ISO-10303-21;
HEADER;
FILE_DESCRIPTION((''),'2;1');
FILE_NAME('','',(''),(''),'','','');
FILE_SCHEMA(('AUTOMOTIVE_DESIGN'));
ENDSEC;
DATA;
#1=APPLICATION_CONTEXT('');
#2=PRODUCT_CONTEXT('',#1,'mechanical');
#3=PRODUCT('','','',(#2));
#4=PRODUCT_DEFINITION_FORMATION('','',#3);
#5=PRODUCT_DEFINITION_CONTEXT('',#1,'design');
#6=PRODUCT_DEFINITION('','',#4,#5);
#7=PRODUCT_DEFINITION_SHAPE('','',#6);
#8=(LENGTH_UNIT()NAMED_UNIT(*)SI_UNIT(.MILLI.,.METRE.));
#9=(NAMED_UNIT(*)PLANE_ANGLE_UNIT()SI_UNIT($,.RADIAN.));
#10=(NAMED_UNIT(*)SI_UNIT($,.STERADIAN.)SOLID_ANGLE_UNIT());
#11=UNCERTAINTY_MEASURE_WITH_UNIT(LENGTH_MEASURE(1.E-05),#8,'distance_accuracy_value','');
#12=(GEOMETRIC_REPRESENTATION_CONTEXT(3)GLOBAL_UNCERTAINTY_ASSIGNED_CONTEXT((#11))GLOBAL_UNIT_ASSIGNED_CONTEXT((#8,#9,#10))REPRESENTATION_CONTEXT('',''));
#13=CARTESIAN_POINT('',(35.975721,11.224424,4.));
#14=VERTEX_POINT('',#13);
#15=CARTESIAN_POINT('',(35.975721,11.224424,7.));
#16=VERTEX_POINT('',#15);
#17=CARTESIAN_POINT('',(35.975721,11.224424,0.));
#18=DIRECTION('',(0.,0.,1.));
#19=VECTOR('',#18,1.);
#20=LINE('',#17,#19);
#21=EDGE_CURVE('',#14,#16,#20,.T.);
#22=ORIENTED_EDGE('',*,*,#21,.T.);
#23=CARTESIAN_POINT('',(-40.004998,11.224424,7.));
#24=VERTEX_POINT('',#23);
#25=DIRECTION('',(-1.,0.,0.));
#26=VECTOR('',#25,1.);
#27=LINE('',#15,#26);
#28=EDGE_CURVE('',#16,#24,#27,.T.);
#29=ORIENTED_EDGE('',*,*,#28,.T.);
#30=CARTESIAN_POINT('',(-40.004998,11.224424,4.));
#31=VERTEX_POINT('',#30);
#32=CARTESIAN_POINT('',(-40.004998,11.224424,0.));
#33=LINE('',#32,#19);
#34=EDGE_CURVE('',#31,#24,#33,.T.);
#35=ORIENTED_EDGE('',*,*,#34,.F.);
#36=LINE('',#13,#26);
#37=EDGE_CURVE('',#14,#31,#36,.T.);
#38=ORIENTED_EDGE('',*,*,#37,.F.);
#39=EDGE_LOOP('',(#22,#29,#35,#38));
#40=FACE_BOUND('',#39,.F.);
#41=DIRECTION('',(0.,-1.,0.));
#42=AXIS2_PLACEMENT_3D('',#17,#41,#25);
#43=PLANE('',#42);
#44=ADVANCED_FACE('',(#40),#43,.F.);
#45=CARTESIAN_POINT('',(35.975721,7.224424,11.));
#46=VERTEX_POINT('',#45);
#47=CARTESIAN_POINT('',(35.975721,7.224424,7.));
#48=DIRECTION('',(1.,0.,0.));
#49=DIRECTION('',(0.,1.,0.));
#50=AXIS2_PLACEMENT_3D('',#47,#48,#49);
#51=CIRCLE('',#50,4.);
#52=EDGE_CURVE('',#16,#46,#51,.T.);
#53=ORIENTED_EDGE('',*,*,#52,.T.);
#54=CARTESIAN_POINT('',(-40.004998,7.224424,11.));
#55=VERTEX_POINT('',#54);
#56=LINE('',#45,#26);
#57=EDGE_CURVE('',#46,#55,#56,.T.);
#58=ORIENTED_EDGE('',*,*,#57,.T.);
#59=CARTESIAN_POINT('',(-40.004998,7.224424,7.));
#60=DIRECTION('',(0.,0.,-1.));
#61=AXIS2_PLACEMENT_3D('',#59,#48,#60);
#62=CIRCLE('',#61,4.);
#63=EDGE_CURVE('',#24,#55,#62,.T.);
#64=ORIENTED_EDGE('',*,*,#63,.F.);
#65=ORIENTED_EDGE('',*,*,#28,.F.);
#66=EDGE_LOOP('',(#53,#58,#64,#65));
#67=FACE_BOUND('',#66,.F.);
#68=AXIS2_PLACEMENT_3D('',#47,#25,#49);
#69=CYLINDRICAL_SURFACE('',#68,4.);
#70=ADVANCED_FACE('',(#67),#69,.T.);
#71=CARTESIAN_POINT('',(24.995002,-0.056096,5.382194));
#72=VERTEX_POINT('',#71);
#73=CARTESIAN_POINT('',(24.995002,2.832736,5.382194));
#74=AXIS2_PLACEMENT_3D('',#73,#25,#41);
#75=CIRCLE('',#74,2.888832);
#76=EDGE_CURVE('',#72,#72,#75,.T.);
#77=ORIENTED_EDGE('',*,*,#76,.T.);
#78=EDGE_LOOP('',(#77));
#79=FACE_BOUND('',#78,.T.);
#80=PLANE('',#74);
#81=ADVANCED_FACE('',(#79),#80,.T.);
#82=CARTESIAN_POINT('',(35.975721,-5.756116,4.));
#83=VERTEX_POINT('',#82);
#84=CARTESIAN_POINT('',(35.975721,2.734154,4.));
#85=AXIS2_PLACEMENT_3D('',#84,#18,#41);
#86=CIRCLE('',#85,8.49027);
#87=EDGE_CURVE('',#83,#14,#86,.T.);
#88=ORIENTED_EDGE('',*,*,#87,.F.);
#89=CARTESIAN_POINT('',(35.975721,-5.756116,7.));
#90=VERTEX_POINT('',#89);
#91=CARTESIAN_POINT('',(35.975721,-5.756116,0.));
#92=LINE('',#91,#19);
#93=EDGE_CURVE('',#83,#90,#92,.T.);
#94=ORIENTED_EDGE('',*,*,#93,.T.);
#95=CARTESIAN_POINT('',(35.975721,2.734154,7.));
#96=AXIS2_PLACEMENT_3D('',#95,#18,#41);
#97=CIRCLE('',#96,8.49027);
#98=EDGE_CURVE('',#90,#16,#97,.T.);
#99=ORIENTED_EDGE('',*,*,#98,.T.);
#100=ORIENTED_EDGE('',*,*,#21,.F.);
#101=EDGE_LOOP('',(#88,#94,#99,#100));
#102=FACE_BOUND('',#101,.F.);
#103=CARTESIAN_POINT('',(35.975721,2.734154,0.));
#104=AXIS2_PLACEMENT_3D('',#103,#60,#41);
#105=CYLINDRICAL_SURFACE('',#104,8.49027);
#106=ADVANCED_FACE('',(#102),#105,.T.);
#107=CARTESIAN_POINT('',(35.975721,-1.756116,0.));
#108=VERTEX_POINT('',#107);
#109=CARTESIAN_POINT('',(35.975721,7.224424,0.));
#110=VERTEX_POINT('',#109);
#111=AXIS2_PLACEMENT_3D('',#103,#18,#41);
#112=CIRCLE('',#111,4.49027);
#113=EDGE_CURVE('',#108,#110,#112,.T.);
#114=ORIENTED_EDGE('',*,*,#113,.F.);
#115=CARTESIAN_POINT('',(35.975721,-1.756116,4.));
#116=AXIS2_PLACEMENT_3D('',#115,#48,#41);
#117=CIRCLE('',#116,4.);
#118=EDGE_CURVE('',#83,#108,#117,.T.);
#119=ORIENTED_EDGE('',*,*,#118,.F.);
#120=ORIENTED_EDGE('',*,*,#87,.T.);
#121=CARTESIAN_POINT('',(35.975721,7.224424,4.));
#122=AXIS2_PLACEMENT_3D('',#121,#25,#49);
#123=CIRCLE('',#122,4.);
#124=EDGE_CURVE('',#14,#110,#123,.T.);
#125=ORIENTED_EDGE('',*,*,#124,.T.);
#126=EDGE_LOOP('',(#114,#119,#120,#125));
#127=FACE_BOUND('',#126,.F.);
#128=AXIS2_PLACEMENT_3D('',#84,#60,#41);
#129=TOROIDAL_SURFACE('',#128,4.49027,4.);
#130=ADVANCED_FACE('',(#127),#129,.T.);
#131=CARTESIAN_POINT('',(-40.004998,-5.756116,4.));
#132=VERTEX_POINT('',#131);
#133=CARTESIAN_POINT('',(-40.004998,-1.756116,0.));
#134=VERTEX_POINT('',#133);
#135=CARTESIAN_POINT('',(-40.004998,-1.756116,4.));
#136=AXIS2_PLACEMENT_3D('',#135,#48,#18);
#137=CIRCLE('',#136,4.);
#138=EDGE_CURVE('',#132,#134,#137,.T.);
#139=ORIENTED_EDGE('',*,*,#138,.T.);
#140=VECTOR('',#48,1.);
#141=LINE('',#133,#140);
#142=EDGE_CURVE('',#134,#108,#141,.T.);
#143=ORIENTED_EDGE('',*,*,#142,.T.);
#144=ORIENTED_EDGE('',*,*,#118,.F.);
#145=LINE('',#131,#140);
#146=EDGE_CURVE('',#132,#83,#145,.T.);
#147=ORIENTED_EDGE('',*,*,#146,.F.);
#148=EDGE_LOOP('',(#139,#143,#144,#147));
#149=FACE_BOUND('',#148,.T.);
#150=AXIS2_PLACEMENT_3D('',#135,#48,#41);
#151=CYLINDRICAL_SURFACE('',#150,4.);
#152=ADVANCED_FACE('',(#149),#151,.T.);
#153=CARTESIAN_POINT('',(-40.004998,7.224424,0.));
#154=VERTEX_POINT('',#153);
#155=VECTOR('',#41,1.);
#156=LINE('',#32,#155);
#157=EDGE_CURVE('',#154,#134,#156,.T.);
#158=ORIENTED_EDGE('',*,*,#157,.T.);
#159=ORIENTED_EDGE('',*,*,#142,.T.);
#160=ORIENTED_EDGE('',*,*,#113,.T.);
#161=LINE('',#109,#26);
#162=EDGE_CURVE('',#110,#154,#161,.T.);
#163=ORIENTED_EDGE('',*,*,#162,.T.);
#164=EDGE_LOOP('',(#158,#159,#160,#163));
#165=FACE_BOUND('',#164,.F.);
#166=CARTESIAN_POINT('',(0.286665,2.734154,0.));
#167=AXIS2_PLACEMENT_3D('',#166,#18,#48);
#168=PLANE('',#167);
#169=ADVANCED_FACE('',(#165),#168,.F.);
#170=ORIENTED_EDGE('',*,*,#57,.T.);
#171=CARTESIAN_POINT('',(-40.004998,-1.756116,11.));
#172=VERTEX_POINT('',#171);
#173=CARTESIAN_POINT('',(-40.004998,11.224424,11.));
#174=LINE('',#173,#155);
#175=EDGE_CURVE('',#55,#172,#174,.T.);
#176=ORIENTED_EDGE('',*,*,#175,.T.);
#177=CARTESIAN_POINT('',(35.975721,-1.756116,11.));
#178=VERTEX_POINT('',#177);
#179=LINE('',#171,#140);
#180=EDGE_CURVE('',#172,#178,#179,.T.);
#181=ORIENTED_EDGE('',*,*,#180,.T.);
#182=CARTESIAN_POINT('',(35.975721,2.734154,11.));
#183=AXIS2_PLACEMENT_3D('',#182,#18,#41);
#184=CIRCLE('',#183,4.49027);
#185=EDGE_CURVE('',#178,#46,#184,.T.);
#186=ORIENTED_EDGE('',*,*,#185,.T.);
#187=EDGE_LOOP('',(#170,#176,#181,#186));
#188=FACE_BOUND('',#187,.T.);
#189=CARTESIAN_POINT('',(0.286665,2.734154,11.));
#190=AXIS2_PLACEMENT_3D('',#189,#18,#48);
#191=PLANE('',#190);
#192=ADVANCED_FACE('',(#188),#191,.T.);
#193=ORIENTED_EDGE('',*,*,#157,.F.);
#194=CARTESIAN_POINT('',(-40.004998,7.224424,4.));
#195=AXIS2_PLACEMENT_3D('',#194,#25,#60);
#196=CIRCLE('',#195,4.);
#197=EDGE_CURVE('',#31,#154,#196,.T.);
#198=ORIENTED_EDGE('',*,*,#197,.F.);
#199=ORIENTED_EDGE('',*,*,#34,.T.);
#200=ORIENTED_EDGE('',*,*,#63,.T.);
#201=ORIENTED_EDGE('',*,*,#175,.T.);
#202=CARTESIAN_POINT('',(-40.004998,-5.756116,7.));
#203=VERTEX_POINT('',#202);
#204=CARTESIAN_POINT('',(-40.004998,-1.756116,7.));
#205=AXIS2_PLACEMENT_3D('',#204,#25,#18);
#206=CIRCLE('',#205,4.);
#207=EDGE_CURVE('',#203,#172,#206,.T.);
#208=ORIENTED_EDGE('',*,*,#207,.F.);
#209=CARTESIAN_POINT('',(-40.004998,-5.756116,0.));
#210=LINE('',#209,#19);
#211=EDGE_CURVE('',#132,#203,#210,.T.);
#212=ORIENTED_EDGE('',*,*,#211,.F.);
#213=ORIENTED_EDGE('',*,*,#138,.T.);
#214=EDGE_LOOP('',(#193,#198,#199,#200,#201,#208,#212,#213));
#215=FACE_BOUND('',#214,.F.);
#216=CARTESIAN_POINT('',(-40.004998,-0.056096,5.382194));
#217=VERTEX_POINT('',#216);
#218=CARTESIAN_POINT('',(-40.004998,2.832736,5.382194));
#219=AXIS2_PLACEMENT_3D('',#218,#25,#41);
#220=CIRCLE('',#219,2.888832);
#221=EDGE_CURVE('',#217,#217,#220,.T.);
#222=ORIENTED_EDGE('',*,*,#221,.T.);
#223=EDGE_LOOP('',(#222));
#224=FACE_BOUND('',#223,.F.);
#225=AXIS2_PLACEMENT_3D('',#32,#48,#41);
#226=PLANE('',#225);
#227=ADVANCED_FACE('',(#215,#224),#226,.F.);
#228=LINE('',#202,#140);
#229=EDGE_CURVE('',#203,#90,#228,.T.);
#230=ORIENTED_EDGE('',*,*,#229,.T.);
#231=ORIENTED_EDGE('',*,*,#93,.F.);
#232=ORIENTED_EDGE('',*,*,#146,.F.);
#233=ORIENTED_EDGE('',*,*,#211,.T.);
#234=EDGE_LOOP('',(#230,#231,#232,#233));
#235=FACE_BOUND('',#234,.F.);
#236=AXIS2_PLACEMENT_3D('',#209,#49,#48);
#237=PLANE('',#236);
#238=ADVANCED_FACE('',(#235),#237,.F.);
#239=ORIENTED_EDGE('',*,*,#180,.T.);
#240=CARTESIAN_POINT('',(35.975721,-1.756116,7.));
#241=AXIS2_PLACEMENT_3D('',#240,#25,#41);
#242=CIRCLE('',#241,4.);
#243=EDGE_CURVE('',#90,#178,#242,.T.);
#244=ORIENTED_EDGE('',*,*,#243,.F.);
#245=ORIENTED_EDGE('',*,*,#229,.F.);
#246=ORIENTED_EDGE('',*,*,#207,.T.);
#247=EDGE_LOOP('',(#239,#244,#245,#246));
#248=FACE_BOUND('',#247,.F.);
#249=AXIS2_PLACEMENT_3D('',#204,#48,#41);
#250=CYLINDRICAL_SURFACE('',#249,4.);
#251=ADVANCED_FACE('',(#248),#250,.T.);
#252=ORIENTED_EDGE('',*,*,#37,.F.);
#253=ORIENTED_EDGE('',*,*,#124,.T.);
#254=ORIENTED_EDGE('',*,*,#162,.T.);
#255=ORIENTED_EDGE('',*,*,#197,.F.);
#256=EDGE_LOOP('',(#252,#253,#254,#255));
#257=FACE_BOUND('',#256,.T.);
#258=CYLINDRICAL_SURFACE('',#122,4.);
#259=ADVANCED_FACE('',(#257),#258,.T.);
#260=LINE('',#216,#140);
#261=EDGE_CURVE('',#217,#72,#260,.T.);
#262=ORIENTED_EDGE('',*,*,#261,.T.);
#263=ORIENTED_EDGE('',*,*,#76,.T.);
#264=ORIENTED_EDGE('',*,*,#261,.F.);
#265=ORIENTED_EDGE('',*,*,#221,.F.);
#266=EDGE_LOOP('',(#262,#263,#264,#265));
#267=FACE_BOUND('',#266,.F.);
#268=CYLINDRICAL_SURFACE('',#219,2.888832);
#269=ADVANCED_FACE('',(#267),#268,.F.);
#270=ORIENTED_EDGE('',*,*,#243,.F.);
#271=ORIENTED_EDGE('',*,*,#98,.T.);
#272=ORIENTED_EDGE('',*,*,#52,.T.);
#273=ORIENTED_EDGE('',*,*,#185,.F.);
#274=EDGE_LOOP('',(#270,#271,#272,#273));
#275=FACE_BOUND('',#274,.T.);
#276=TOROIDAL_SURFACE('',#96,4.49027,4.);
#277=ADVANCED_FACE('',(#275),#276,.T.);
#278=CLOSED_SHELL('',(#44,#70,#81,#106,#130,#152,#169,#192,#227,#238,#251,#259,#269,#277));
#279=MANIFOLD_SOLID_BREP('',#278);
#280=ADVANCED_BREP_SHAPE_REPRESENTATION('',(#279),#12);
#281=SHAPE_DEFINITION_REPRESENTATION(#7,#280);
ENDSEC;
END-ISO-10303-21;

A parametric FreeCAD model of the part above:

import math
import FreeCAD as App
import Part
import Sketcher
from FreeCAD import Vector
Q = App.Units.Quantity


def edges_at(feature, points):
    """Names of the edges that pass closest to the given points."""
    edges = feature.Shape.Edges
    near = lambda p: min(range(len(edges)), key=lambda i: edges[i].distToShape(Part.Vertex(*p))[0])
    return sorted({f"Edge{near(p) + 1}" for p in points})

doc = App.newDocument("Part")
body = doc.addObject("PartDesign::Body", "Body")

sketch1 = body.newObject("Sketcher::SketchObject", "Sketch")
sketch1.AttachmentSupport = (doc.getObject("XY_Plane"), [""])
sketch1.MapMode = "FlatFace"
sketch1.addGeometry([
    Part.LineSegment(Vector(35.975721, 11.224424, 0), Vector(-40.004998, 11.224424, 0)),
    Part.LineSegment(Vector(-40.004998, 11.224424, 0), Vector(-40.004998, -5.756116, 0)),
    Part.LineSegment(Vector(-40.004998, -5.756116, 0), Vector(35.975721, -5.756116, 0)),
    Part.ArcOfCircle(Part.Circle(Vector(35.975721, 2.734154, 0), Vector(0, 0, 1), 8.49027), math.radians(-90), math.radians(90)),
], False)
sketch1.addConstraint([
    Sketcher.Constraint("Coincident", 0, 2, 1, 1),
    Sketcher.Constraint("Coincident", 1, 2, 2, 1),
    Sketcher.Constraint("Tangent", 2, 2, 3, 1),
    Sketcher.Constraint("Tangent", 3, 2, 0, 1),
    Sketcher.Constraint("Horizontal", 0),
    Sketcher.Constraint("Vertical", 1),
    Sketcher.Constraint("Horizontal", 2),
    Sketcher.Constraint("Radius", 3, Q("8.49027 mm")),
    Sketcher.Constraint("DistanceX", 0, 2, 0, 1, Q("75.980719 mm")),
    Sketcher.Constraint("DistanceX", -1, 1, 3, 3, Q("35.975721 mm")),
    Sketcher.Constraint("DistanceY", -1, 1, 3, 3, Q("2.734154 mm")),
])
pad1 = body.newObject("PartDesign::Pad", "Pad")
pad1.Profile = sketch1
pad1.Length = 11
doc.recompute()

fillet = body.newObject("PartDesign::Fillet", "Fillet")
fillet.Base = (pad1, edges_at(pad1, [(-2.015, -5.756, 11), (44.466, 2.734, 11), (-2.015, 11.224, 11)]))
fillet.Radius = 4
doc.recompute()

fillet2 = body.newObject("PartDesign::Fillet", "Fillet001")
fillet2.Base = (fillet, edges_at(fillet, [(-2.015, 11.224, 0), (-2.015, -5.756, 0), (44.466, 2.734, 0)]))
fillet2.Radius = 4

sketch2 = body.newObject("Sketcher::SketchObject", "Sketch001")
sketch2.AttachmentSupport = (doc.getObject("YZ_Plane"), [""])
sketch2.MapMode = "FlatFace"
sketch2.AttachmentOffset = App.Placement(Vector(0, 0, -40.004998), App.Rotation())
sketch2.addGeometry(Part.Circle(Vector(2.832736, 5.382194, 0), Vector(0, 0, 1), 2.888832), False)
sketch2.addConstraint([
    Sketcher.Constraint("Diameter", 0, Q("5.777664 mm")),
    Sketcher.Constraint("DistanceX", -1, 1, 0, 3, Q("2.832736 mm")),
    Sketcher.Constraint("DistanceY", -1, 1, 0, 3, Q("5.382194 mm")),
])
pocket1 = body.newObject("PartDesign::Pocket", "Pocket")
pocket1.Profile = sketch2
pocket1.Length = 65
pocket1.Reversed = True

doc.recompute()
